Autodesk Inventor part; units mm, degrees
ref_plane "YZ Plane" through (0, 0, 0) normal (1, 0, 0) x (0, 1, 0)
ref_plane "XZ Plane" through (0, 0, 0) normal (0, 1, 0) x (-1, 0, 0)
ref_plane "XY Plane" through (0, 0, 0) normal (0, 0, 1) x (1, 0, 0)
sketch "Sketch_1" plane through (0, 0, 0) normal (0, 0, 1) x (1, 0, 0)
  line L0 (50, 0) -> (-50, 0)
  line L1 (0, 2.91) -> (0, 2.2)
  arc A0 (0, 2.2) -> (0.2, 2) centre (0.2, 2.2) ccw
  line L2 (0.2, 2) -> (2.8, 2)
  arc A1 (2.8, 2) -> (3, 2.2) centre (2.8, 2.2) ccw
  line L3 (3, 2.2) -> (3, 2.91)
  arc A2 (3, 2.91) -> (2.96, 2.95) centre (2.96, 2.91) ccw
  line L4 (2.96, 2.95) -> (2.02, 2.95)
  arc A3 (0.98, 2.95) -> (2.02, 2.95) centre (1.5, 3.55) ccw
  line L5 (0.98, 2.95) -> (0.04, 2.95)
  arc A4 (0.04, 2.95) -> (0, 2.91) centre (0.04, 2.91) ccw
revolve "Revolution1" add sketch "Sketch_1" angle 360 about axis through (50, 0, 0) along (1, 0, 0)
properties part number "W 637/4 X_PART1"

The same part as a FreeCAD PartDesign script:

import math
import FreeCAD as App
import Part
import Sketcher
from FreeCAD import Vector
Q = App.Units.Quantity

doc = App.newDocument("Part")
body = doc.addObject("PartDesign::Body", "Body")

sketch1 = body.newObject("Sketcher::SketchObject", "Sketch")
sketch1.AttachmentSupport = (doc.getObject("XY_Plane"), [""])
sketch1.MapMode = "FlatFace"
sketch1.addGeometry([
    Part.ArcOfCircle(Part.Circle(Vector(0.04, 2.91, 0), Vector(0, 0, 1), 0.04), math.radians(90), math.radians(180)),
    Part.LineSegment(Vector(0, 2.91, 0), Vector(0, 2.2, 0)),
    Part.ArcOfCircle(Part.Circle(Vector(0.2, 2.2, 0), Vector(0, 0, 1), 0.2), math.radians(180), math.radians(270)),
    Part.LineSegment(Vector(0.2, 2, 0), Vector(2.8, 2, 0)),
    Part.ArcOfCircle(Part.Circle(Vector(2.8, 2.2, 0), Vector(0, 0, 1), 0.2), math.radians(-90), math.radians(0)),
    Part.LineSegment(Vector(3, 2.2, 0), Vector(3, 2.91, 0)),
    Part.ArcOfCircle(Part.Circle(Vector(2.96, 2.91, 0), Vector(0, 0, 1), 0.04), math.radians(0), math.radians(90)),
    Part.LineSegment(Vector(2.96, 2.95, 0), Vector(2.02, 2.95, 0)),
    Part.ArcOfCircle(Part.Circle(Vector(1.5, 3.55, 0), Vector(0, 0, 1), 0.793977), math.radians(-130.914383), math.radians(-49.085617)),
    Part.LineSegment(Vector(0.98, 2.95, 0), Vector(0.04, 2.95, 0)),
], False)
sketch1.addConstraint([
    Sketcher.Constraint("Tangent", 0, 2, 1, 1),
    Sketcher.Constraint("Tangent", 1, 2, 2, 1),
    Sketcher.Constraint("Tangent", 2, 2, 3, 1),
    Sketcher.Constraint("Tangent", 3, 2, 4, 1),
    Sketcher.Constraint("Tangent", 4, 2, 5, 1),
    Sketcher.Constraint("Tangent", 5, 2, 6, 1),
    Sketcher.Constraint("Tangent", 6, 2, 7, 1),
    Sketcher.Constraint("Coincident", 7, 2, 8, 2),
    Sketcher.Constraint("Coincident", 8, 1, 9, 1),
    Sketcher.Constraint("Tangent", 9, 2, 0, 1),
    Sketcher.Constraint("Vertical", 1),
    Sketcher.Constraint("Horizontal", 3),
    Sketcher.Constraint("Vertical", 5),
    Sketcher.Constraint("Horizontal", 7),
    Sketcher.Constraint("Horizontal", 9),
    Sketcher.Constraint("Equal", 2, 4),
    Sketcher.Constraint("Equal", 0, 6),
    Sketcher.Constraint("PointOnObject", 0, 2, -2),
    Sketcher.Constraint("Horizontal", 0, 3, 6, 3),
    Sketcher.Constraint("Equal", 7, 9),
    Sketcher.Constraint("Radius", 2, Q("0.2 mm")),
    Sketcher.Constraint("Radius", 0, Q("0.04 mm")),
    Sketcher.Constraint("DistanceX", 3, 1, 3, 2, Q("2.6 mm")),
    Sketcher.Constraint("DistanceY", -1, 1, 2, 2, Q("2 mm")),
    Sketcher.Constraint("Radius", 8, Q("0.794 mm")),
    Sketcher.Constraint("DistanceX", 7, 2, 7, 1, Q("0.94 mm")),
    Sketcher.Constraint("DistanceY", 1, 2, 1, 1, Q("0.71 mm")),
])
revolution = body.newObject("PartDesign::Revolution", "Revolution")
revolution.Profile = sketch1
revolution.ReferenceAxis = (sketch1, ["H_Axis"])
revolution.Angle = 360

doc.recompute()
